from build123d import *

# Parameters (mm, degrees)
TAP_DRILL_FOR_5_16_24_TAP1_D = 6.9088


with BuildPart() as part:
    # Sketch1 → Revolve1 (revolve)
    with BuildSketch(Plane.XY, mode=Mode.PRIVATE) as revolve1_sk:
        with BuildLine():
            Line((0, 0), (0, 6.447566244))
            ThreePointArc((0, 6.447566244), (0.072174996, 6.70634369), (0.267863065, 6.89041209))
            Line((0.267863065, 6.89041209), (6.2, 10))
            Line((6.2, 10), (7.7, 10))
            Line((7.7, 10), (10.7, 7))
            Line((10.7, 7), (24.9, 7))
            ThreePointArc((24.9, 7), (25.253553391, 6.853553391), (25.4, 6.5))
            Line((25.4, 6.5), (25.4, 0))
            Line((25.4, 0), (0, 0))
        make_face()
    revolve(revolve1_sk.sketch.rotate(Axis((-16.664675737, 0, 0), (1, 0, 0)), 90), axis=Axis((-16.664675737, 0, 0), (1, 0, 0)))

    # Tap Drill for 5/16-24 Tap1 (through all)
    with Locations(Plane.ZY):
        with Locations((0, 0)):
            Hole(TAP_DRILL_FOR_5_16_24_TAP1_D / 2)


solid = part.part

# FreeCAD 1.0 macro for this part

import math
import FreeCAD as App
import Part
import Sketcher

V = App.Vector
Q = App.Units.Quantity

doc = App.newDocument("Part")
body = doc.addObject("PartDesign::Body", "Body")

# Sketch on XY plane
sketch1 = body.newObject("Sketcher::SketchObject", "Sketch")
sketch1.AttachmentSupport = (doc.getObject("XY_Plane"), [""])
sketch1.MapMode = "FlatFace"
sketch1.addGeometry(Part.LineSegment(V(0, 6.45, 0), V(0, 0, 0)), False)
sketch1.addGeometry(Part.LineSegment(V(0, 0, 0), V(25.4, 0, 0)), False)
sketch1.addGeometry(Part.LineSegment(V(25.4, 0, 0), V(25.4, 6.5, 0)), False)
sketch1.addGeometry(Part.ArcOfCircle(Part.Circle(V(24.9, 6.5, 0), V(0, 0, 1), 0.5), math.radians(0), math.radians(90)), False)
sketch1.addGeometry(Part.LineSegment(V(24.9, 7, 0), V(10.7, 7, 0)), False)
sketch1.addGeometry(Part.LineSegment(V(10.7, 7, 0), V(7.7, 10, 0)), False)
sketch1.addGeometry(Part.LineSegment(V(7.7, 10, 0), V(6.2, 10, 0)), False)
sketch1.addGeometry(Part.LineSegment(V(6.2, 10, 0), V(0.27, 6.89, 0)), False)
sketch1.addGeometry(Part.ArcOfCircle(Part.Circle(V(0.5, 6.45, 0), V(0, 0, 1), 0.5), math.radians(118), math.radians(180)), False)
sketch1.addConstraint(Sketcher.Constraint("Coincident", 0, 2, 1, 1))
sketch1.addConstraint(Sketcher.Constraint("Coincident", 1, 2, 2, 1))
sketch1.addConstraint(Sketcher.Constraint("Tangent", 2, 2, 3, 1))
sketch1.addConstraint(Sketcher.Constraint("Tangent", 3, 2, 4, 1))
sketch1.addConstraint(Sketcher.Constraint("Coincident", 4, 2, 5, 1))
sketch1.addConstraint(Sketcher.Constraint("Coincident", 5, 2, 6, 1))
sketch1.addConstraint(Sketcher.Constraint("Coincident", 6, 2, 7, 1))
sketch1.addConstraint(Sketcher.Constraint("Tangent", 7, 2, 8, 1))
sketch1.addConstraint(Sketcher.Constraint("Tangent", 8, 2, 0, 1))
sketch1.addConstraint(Sketcher.Constraint("Vertical", 0))
sketch1.addConstraint(Sketcher.Constraint("Horizontal", 1))
sketch1.addConstraint(Sketcher.Constraint("Vertical", 2))
sketch1.addConstraint(Sketcher.Constraint("Horizontal", 4))
sketch1.addConstraint(Sketcher.Constraint("Horizontal", 6))
sketch1.addConstraint(Sketcher.Constraint("Coincident", 0, 2, -1, 1))
sketch1.addConstraint(Sketcher.Constraint("Equal", 3, 8))
sketch1.addConstraint(Sketcher.Constraint("Radius", 3, 0.5))
sketch1.addConstraint(Sketcher.Constraint("Angle", 5, Q("135 deg")))
sketch1.addConstraint(Sketcher.Constraint("DistanceX", 1, 1, 1, 2, 25.4))
sketch1.addConstraint(Sketcher.Constraint("DistanceX", 4, 2, 4, 1, 14.2))
sketch1.addConstraint(Sketcher.Constraint("DistanceX", 6, 2, 6, 1, 1.5))
sketch1.addConstraint(Sketcher.Constraint("DistanceY", 2, 1, 2, 2, 6.5))
sketch1.addConstraint(Sketcher.Constraint("DistanceY", -1, 1, 5, 2, 10.0))
sketch1.addConstraint(Sketcher.Constraint("DistanceY", 0, 2, 0, 1, 6.447566))
revolution = body.newObject("PartDesign::Revolution", "Revolution")
revolution.Profile = sketch1
revolution.ReferenceAxis = (sketch1, ["H_Axis"])
revolution.Angle = 360

# Sketch on YZ plane
sketch2 = body.newObject("Sketcher::SketchObject", "Sketch001")
sketch2.AttachmentSupport = (doc.getObject("YZ_Plane"), [""])
sketch2.MapMode = "FlatFace"
sketch2.addGeometry(Part.Circle(V(0, 0, 0), V(0, 0, 1), 3.5), False)
sketch2.addConstraint(Sketcher.Constraint("Coincident", 0, 3, -1, 1))
sketch2.addConstraint(Sketcher.Constraint("Diameter", 0, 6.9088))
doc.recompute()
hole = body.newObject("PartDesign::Hole", "Hole")
hole.Profile = sketch2
hole.ThreadType = "None"
hole.Diameter = 6.9088
hole.DepthType = "ThroughAll"
hole.Reversed = True

doc.recompute()
